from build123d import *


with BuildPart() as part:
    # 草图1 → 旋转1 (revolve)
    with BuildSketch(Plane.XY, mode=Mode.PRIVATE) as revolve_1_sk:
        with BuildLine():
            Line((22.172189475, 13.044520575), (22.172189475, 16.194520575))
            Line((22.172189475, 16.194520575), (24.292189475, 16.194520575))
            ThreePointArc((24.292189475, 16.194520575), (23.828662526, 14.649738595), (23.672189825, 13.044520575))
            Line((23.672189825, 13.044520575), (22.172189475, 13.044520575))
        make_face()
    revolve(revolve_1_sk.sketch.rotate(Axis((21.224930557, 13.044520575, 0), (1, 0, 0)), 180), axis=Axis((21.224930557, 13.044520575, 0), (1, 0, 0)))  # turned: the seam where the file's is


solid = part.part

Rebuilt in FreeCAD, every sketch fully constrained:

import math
import FreeCAD as App
import Part
import Sketcher
from FreeCAD import Vector

doc = App.newDocument("Part")
body = doc.addObject("PartDesign::Body", "Body")

# Sketch on XY plane
sketch1 = doc.addObject("Sketcher::SketchObject", "Sketch")
body.addObject(sketch1)
sketch1.AttachmentSupport = (doc.XY_Plane, [""])
sketch1.MapMode = "FlatFace"
sketch1.addGeometry([
    Part.LineSegment(Vector(22.2, 16.2, 0), Vector(22.2, 13, 0)),
    Part.LineSegment(Vector(22.2, 13, 0), Vector(23.7, 13, 0)),
    Part.ArcOfCircle(Part.Circle(Vector(32, 13, 0), Vector(0, 0, 1), 8.3), math.radians(158), math.radians(180)),
    Part.LineSegment(Vector(24.3, 16.2, 0), Vector(22.2, 16.2, 0)),
], False)
sketch1.addGeometry(Part.LineSegment(Vector(22.2, 13, 0), Vector(32, 13, 0)), True)  # axis
sketch1.addConstraint([
    Sketcher.Constraint("Coincident", 0, 2, 1, 1),
    Sketcher.Constraint("Coincident", 1, 2, 2, 2),
    Sketcher.Constraint("Coincident", 2, 1, 3, 1),
    Sketcher.Constraint("Coincident", 3, 2, 0, 1),
    Sketcher.Constraint("Vertical", 0),
    Sketcher.Constraint("Horizontal", 1),
    Sketcher.Constraint("Horizontal", 3),
    Sketcher.Constraint("Horizontal", 4),
    Sketcher.Constraint("Coincident", 4, 1, 0, 2),
    Sketcher.Constraint("Coincident", 4, 2, 2, 3),
    Sketcher.Constraint("DistanceX", 1, 1, 1, 2, 1.5),
    Sketcher.Constraint("DistanceX", 3, 2, 3, 1, 2.12),
    Sketcher.Constraint("DistanceY", 0, 2, 0, 1, 3.15),
    Sketcher.Constraint("DistanceX", -1, 1, 2, 3, 31.98421),
    Sketcher.Constraint("DistanceY", -1, 1, 2, 3, 13.044521),
])
revolution = doc.addObject("PartDesign::Revolution", "Revolution")
body.addObject(revolution)
revolution.Profile = sketch1
revolution.ReferenceAxis = (sketch1, ["Axis0"])
revolution.Angle = 360

doc.recompute()
